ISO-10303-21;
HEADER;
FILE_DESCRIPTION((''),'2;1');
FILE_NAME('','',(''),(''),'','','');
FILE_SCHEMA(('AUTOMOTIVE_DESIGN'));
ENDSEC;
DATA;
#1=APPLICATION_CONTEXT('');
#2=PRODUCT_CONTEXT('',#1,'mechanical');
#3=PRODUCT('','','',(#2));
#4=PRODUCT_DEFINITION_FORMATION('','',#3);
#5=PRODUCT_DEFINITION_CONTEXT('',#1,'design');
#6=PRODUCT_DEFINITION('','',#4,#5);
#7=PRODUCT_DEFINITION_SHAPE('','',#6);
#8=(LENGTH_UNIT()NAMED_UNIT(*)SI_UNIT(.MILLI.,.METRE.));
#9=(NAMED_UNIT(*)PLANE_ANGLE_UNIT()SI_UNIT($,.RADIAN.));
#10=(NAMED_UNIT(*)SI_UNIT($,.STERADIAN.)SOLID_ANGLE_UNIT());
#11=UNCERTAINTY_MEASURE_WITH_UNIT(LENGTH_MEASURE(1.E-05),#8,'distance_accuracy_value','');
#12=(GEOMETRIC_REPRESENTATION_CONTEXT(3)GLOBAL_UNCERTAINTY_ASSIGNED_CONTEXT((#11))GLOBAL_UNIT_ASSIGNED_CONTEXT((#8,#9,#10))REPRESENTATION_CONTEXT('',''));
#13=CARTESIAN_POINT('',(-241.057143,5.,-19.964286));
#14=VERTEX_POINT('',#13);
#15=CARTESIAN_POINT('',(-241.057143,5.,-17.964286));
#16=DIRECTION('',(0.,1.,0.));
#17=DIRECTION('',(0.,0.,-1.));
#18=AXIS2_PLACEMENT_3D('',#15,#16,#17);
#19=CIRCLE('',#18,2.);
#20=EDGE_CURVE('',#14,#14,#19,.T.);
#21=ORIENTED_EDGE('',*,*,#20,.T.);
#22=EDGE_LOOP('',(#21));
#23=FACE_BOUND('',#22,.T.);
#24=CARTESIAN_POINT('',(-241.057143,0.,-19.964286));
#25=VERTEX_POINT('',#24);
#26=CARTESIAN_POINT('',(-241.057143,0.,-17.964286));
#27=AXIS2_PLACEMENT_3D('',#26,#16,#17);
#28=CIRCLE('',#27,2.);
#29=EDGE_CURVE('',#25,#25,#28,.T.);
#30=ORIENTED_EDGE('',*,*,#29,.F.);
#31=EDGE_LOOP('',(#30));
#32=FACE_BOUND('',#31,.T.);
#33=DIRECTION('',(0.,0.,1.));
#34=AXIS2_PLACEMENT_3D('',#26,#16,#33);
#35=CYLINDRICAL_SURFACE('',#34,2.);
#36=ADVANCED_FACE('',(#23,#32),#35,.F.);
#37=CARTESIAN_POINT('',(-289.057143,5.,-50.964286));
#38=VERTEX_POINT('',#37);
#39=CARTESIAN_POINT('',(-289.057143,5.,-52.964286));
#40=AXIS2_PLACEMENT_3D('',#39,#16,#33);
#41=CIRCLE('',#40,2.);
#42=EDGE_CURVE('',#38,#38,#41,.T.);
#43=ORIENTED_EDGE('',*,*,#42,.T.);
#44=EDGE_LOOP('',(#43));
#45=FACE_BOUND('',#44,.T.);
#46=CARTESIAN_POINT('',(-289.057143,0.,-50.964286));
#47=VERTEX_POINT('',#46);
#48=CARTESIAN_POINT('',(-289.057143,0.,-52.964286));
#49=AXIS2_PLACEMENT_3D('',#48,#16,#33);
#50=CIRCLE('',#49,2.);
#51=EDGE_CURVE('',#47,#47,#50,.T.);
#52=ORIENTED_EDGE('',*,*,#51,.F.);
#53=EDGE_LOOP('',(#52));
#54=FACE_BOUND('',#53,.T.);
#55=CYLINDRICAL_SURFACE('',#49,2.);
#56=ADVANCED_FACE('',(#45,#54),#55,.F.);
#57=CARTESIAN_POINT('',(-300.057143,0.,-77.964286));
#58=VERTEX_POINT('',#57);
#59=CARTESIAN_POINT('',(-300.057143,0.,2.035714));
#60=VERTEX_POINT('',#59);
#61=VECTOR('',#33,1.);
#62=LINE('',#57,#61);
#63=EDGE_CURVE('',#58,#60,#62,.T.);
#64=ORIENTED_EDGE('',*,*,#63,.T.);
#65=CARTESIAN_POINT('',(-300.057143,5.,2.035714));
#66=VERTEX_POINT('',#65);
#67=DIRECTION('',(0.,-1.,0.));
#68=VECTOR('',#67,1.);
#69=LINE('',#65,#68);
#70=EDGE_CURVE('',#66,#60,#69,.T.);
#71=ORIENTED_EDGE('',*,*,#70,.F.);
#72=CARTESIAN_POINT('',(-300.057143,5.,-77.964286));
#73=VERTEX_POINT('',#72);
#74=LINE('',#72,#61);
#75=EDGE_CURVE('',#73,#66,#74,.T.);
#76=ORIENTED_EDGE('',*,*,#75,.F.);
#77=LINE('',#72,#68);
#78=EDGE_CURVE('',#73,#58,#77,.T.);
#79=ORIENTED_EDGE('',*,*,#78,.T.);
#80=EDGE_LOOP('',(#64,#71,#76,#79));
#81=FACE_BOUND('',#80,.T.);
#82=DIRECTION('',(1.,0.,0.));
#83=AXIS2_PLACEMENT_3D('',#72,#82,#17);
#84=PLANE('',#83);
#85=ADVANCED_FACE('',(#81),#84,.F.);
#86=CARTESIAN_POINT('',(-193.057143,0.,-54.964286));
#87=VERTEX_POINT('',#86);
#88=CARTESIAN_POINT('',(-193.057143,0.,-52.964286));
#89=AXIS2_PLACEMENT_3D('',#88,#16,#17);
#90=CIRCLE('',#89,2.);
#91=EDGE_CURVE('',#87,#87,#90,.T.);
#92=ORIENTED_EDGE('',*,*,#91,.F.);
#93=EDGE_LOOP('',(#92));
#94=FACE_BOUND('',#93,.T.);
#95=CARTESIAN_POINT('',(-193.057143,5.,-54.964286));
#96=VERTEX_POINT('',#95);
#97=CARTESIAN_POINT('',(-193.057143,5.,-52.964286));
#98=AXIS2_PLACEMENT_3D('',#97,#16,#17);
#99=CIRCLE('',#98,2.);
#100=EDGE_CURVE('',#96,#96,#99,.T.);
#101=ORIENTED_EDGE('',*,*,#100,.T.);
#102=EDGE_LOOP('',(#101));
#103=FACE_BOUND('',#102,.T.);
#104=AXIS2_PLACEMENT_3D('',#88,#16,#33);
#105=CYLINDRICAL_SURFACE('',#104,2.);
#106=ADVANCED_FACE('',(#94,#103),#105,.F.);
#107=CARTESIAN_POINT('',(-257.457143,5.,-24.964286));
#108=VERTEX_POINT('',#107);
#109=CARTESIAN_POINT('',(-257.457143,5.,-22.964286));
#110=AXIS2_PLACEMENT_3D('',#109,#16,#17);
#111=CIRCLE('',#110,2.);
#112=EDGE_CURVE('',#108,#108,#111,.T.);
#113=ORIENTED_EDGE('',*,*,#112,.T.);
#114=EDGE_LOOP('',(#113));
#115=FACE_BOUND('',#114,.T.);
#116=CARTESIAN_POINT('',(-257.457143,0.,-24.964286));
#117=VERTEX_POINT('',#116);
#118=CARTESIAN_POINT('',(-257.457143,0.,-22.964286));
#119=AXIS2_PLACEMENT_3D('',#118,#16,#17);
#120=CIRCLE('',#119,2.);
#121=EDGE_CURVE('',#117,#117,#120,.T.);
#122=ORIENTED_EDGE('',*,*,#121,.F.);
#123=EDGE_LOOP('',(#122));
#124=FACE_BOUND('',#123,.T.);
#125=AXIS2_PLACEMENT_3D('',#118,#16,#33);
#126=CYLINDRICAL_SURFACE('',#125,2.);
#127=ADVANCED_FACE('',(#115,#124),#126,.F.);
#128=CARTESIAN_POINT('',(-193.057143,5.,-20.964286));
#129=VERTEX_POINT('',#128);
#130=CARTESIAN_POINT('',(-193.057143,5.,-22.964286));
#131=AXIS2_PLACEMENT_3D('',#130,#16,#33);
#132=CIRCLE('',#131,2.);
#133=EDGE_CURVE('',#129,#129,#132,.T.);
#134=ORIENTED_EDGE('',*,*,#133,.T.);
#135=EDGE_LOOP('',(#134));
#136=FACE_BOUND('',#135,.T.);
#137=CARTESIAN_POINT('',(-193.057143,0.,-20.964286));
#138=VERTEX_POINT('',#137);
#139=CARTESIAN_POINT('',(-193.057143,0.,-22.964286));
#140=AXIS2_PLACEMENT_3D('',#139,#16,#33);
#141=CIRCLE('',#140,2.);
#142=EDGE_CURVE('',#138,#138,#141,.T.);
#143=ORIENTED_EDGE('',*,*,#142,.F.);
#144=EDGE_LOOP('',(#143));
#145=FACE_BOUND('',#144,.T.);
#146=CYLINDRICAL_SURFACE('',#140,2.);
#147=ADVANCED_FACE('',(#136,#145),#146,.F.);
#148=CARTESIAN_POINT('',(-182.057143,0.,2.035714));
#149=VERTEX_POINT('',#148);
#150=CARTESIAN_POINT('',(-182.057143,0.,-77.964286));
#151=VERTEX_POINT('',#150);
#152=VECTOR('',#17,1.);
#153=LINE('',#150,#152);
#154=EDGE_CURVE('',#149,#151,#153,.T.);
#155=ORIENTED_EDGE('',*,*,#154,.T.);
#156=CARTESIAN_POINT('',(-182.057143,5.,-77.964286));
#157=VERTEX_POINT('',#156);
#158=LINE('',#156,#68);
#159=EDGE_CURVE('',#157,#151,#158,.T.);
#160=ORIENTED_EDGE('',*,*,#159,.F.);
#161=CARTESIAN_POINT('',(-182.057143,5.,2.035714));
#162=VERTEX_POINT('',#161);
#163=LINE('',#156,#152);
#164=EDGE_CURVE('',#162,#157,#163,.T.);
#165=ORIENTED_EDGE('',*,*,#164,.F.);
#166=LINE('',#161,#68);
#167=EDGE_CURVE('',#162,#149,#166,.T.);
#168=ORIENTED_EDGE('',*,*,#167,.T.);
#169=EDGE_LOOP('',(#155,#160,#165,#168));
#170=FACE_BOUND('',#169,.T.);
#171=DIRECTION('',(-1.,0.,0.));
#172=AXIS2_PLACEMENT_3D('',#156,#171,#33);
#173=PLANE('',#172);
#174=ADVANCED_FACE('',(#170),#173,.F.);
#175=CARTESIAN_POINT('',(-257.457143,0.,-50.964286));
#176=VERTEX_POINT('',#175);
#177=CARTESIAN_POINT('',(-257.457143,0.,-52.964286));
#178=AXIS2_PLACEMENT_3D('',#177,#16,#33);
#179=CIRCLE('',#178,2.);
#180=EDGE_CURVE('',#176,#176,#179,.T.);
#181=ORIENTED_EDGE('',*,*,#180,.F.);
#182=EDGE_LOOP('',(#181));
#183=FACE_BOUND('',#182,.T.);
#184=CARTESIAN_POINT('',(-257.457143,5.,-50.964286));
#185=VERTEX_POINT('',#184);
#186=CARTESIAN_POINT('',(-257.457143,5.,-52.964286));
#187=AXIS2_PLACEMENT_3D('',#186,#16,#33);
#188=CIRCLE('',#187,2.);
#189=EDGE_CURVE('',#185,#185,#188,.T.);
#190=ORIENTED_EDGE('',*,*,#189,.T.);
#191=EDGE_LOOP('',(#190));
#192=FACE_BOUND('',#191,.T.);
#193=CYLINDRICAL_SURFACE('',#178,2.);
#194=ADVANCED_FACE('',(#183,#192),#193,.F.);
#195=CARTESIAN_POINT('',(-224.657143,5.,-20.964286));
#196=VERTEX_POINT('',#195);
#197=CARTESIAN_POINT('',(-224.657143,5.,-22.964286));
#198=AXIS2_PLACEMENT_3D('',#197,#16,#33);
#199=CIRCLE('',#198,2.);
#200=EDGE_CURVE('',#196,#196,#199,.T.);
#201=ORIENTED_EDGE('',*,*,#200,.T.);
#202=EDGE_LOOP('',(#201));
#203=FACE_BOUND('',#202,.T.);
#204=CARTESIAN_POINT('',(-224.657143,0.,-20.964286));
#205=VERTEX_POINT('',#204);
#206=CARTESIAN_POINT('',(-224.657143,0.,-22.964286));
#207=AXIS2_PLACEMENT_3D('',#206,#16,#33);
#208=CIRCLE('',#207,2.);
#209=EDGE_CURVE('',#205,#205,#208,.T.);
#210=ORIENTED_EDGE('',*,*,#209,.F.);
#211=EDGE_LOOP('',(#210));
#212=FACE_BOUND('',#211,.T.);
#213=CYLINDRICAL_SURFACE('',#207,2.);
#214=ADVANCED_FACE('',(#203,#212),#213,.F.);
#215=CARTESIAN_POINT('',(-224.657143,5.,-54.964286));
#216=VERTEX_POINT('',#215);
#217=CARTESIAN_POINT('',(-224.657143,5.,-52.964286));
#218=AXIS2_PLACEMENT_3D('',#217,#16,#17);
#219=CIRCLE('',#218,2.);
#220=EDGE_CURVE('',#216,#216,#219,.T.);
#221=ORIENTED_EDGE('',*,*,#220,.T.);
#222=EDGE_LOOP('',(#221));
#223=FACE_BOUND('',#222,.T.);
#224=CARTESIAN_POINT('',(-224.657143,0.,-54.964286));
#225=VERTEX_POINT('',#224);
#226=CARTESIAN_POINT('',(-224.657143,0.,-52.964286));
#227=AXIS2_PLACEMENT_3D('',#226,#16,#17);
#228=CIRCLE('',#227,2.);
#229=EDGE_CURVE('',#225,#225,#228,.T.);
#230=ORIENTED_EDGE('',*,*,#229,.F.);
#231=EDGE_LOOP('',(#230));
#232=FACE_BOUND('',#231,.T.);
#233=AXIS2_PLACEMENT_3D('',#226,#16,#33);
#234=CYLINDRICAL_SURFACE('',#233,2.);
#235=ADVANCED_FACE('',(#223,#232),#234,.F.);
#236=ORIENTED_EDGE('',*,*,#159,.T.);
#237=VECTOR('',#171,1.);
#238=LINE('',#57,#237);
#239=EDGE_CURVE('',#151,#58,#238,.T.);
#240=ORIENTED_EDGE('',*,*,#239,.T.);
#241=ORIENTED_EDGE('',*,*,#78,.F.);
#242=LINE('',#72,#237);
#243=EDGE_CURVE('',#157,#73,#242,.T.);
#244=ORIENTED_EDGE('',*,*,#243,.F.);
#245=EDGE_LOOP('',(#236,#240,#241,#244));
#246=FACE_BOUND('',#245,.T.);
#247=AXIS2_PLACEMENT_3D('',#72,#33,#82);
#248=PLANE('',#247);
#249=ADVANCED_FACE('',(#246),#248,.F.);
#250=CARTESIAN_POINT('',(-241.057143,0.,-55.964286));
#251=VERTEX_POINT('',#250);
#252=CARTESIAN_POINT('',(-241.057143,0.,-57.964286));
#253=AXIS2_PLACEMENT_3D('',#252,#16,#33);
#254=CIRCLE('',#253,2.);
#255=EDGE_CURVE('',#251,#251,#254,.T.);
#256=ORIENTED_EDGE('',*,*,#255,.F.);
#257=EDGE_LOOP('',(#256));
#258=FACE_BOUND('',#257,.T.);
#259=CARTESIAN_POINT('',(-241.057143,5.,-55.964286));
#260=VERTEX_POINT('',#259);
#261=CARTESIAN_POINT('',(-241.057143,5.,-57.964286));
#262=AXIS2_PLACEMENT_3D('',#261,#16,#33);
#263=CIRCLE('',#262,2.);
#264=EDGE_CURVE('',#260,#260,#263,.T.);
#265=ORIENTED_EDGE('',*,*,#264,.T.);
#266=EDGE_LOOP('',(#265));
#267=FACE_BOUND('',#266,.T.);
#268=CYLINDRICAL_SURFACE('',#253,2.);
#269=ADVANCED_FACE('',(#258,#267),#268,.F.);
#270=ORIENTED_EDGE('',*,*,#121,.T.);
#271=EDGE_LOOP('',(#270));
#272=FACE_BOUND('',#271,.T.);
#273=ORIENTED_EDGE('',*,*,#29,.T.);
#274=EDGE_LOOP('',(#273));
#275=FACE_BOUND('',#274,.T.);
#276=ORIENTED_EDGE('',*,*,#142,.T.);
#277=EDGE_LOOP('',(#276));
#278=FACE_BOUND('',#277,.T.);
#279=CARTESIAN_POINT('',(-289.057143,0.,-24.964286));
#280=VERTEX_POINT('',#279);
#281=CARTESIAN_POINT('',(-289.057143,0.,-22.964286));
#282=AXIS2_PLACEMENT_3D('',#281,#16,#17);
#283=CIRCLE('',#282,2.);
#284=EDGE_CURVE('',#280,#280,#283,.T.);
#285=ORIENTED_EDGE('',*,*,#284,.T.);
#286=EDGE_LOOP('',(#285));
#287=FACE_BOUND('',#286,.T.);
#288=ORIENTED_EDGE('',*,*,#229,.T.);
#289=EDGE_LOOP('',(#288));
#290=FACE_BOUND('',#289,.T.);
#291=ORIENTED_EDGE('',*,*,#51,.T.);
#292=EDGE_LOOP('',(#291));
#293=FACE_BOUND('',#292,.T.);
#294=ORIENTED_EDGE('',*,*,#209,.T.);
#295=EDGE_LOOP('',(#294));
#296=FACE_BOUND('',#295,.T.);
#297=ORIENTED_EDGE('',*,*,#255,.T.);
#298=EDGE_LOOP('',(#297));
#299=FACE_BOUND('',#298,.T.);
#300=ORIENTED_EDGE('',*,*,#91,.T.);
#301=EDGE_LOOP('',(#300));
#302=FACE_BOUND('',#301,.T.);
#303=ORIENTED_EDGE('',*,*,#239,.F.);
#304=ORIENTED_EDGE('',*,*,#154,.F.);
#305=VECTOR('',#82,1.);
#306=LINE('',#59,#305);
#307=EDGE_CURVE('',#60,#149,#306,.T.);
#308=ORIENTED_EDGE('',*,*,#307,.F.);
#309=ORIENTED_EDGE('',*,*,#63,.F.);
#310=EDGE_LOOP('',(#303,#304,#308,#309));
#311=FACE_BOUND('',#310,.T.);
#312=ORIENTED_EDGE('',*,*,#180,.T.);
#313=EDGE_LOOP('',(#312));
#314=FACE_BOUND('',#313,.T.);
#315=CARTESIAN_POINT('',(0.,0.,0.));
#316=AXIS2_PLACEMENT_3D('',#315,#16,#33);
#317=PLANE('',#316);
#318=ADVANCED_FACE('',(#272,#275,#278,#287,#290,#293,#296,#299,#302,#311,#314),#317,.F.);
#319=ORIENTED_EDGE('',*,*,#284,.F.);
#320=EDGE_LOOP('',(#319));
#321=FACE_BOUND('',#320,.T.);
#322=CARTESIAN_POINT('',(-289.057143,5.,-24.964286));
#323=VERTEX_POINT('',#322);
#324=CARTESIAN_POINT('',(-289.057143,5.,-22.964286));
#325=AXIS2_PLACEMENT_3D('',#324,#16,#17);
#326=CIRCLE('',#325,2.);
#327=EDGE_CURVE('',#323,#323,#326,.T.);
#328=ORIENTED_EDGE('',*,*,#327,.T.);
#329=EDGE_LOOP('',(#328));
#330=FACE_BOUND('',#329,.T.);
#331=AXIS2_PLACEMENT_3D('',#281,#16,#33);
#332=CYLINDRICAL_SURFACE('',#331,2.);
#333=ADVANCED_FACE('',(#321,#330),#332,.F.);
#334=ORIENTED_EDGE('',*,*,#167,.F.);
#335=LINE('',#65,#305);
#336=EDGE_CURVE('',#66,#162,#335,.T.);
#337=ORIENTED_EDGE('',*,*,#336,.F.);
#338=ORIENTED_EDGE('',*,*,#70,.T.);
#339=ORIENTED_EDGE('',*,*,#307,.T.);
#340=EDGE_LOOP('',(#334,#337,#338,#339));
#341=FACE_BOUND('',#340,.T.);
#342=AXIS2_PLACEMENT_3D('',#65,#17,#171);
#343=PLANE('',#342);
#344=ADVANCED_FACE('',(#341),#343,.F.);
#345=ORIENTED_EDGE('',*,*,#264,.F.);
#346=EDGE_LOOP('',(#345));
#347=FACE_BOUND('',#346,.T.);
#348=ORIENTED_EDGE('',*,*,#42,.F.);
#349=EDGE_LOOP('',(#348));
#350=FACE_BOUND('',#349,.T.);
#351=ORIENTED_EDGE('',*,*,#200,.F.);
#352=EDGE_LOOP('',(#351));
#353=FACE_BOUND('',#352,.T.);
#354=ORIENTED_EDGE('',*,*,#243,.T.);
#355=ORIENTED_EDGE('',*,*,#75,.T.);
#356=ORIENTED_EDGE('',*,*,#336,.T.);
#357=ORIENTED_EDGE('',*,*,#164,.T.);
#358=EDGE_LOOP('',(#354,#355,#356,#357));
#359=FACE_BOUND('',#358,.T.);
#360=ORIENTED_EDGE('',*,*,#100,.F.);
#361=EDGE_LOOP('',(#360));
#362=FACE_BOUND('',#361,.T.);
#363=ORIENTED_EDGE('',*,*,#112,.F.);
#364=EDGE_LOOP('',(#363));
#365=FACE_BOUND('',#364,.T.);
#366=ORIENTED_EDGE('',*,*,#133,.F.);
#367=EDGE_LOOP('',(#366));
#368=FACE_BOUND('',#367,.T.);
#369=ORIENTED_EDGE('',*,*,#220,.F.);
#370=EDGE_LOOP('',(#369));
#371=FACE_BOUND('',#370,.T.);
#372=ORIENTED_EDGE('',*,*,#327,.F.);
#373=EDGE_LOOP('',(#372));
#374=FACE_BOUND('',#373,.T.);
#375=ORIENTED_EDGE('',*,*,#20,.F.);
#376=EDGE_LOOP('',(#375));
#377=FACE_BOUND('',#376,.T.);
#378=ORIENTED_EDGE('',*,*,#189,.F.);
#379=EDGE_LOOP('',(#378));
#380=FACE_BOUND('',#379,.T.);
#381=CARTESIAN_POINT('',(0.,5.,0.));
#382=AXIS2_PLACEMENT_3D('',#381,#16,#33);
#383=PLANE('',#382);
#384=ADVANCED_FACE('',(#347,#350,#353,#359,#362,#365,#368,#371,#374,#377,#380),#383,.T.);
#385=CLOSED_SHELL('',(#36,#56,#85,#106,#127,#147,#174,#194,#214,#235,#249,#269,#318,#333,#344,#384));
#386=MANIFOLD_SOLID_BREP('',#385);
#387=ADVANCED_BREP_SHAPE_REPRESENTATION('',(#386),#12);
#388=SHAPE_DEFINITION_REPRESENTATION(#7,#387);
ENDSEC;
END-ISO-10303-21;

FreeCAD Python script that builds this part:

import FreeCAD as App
import Part
import Sketcher
from FreeCAD import Vector


def add_polygon(sketch, points):
    """Adds a closed chain of lines whose ends are joined by coincident constraints."""
    first, n = sketch.GeometryCount, len(points)
    for a, b in zip(points, points[1:] + points[:1]):
        sketch.addGeometry(Part.LineSegment(App.Vector(*a, 0), App.Vector(*b, 0)), False)
    for i in range(n):
        sketch.addConstraint(Sketcher.Constraint("Coincident", first + i, 2, first + (i + 1) % n, 1))

doc = App.newDocument("Part")
body = doc.addObject("PartDesign::Body", "Body")

sketch1 = body.newObject("Sketcher::SketchObject", "Sketch")
sketch1.AttachmentSupport = (doc.getObject("XZ_Plane"), [""])
sketch1.MapMode = "FlatFace"
add_polygon(sketch1, [(-300, -78), (-300, 2), (-182, 2), (-182, -78)])
sketch1.addConstraint([
    Sketcher.Constraint("Vertical", 0),
    Sketcher.Constraint("Horizontal", 1),
    Sketcher.Constraint("Vertical", 2),
    Sketcher.Constraint("Horizontal", 3),
    Sketcher.Constraint("DistanceX", 1, 1, 1, 2, 118.0),
    Sketcher.Constraint("DistanceY", 0, 1, 0, 2, 80.0),
    Sketcher.Constraint("DistanceX", 0, 2, -1, 1, 300.057143),
    Sketcher.Constraint("DistanceY", -1, 1, 0, 2, 2.035714),
])
pad1 = body.newObject("PartDesign::Pad", "Pad")
pad1.Profile = sketch1
pad1.Length = 5
pad1.Reversed = True

sketch2 = body.newObject("Sketcher::SketchObject", "Sketch001")
sketch2.AttachmentSupport = (doc.getObject("XZ_Plane"), [""])
sketch2.MapMode = "FlatFace"
sketch2.AttachmentOffset = App.Placement(Vector(0, 0, -5), App.Rotation())
sketch2.addGeometry([
    Part.Circle(Vector(-289.1, -53, 0), Vector(0, 0, 1), 2),
    Part.Circle(Vector(-257.5, -53, 0), Vector(0, 0, 1), 2),
    Part.Circle(Vector(-224.7, -53, 0), Vector(0, 0, 1), 2),
    Part.Circle(Vector(-193.1, -53, 0), Vector(0, 0, 1), 2),
    Part.Circle(Vector(-193.1, -23, 0), Vector(0, 0, 1), 2),
    Part.Circle(Vector(-224.7, -23, 0), Vector(0, 0, 1), 2),
    Part.Circle(Vector(-257.5, -23, 0), Vector(0, 0, 1), 2),
    Part.Circle(Vector(-289.1, -23, 0), Vector(0, 0, 1), 2),
    Part.Circle(Vector(-241.1, -58, 0), Vector(0, 0, 1), 2),
    Part.Circle(Vector(-241.1, -18, 0), Vector(0, 0, 1), 2),
], False)
sketch2.addConstraint([
    Sketcher.Constraint("Equal", 0, 1),
    Sketcher.Constraint("Equal", 1, 2),
    Sketcher.Constraint("Equal", 2, 3),
    Sketcher.Constraint("Equal", 3, 4),
    Sketcher.Constraint("Equal", 4, 5),
    Sketcher.Constraint("Equal", 5, 6),
    Sketcher.Constraint("Equal", 6, 7),
    Sketcher.Constraint("Equal", 7, 8),
    Sketcher.Constraint("Equal", 8, 9),
    Sketcher.Constraint("Horizontal", 0, 3, 1, 3),
    Sketcher.Constraint("Horizontal", 1, 3, 2, 3),
    Sketcher.Constraint("Horizontal", 2, 3, 3, 3),
    Sketcher.Constraint("Horizontal", 4, 3, 5, 3),
    Sketcher.Constraint("Horizontal", 5, 3, 6, 3),
    Sketcher.Constraint("Horizontal", 6, 3, 7, 3),
    Sketcher.Constraint("Vertical", 3, 3, 4, 3),
    Sketcher.Constraint("Vertical", 2, 3, 5, 3),
    Sketcher.Constraint("Vertical", 1, 3, 6, 3),
    Sketcher.Constraint("Vertical", 0, 3, 7, 3),
    Sketcher.Constraint("Vertical", 8, 3, 9, 3),
    Sketcher.Constraint("Diameter", 0, 4.0),
    Sketcher.Constraint("DistanceX", 0, 3, 3, 3, 96.0),
    Sketcher.Constraint("DistanceY", 3, 3, 4, 3, 30.0),
    Sketcher.Constraint("DistanceY", 8, 3, 1, 3, 5.0),
    Sketcher.Constraint("DistanceX", 0, 3, 8, 3, 48.0),
    Sketcher.Constraint("DistanceY", 5, 3, 9, 3, 5.0),
    Sketcher.Constraint("DistanceX", 0, 3, 1, 3, 31.6),
    Sketcher.Constraint("DistanceX", 1, 3, 2, 3, 32.8),
    Sketcher.Constraint("DistanceX", 0, 3, -1, 1, 289.057143),
    Sketcher.Constraint("DistanceY", 0, 3, -1, 1, 52.964286),
])
pocket1 = body.newObject("PartDesign::Pocket", "Pocket")
pocket1.Profile = sketch2
pocket1.Length = 5
pocket1.Reversed = True

doc.recompute()
